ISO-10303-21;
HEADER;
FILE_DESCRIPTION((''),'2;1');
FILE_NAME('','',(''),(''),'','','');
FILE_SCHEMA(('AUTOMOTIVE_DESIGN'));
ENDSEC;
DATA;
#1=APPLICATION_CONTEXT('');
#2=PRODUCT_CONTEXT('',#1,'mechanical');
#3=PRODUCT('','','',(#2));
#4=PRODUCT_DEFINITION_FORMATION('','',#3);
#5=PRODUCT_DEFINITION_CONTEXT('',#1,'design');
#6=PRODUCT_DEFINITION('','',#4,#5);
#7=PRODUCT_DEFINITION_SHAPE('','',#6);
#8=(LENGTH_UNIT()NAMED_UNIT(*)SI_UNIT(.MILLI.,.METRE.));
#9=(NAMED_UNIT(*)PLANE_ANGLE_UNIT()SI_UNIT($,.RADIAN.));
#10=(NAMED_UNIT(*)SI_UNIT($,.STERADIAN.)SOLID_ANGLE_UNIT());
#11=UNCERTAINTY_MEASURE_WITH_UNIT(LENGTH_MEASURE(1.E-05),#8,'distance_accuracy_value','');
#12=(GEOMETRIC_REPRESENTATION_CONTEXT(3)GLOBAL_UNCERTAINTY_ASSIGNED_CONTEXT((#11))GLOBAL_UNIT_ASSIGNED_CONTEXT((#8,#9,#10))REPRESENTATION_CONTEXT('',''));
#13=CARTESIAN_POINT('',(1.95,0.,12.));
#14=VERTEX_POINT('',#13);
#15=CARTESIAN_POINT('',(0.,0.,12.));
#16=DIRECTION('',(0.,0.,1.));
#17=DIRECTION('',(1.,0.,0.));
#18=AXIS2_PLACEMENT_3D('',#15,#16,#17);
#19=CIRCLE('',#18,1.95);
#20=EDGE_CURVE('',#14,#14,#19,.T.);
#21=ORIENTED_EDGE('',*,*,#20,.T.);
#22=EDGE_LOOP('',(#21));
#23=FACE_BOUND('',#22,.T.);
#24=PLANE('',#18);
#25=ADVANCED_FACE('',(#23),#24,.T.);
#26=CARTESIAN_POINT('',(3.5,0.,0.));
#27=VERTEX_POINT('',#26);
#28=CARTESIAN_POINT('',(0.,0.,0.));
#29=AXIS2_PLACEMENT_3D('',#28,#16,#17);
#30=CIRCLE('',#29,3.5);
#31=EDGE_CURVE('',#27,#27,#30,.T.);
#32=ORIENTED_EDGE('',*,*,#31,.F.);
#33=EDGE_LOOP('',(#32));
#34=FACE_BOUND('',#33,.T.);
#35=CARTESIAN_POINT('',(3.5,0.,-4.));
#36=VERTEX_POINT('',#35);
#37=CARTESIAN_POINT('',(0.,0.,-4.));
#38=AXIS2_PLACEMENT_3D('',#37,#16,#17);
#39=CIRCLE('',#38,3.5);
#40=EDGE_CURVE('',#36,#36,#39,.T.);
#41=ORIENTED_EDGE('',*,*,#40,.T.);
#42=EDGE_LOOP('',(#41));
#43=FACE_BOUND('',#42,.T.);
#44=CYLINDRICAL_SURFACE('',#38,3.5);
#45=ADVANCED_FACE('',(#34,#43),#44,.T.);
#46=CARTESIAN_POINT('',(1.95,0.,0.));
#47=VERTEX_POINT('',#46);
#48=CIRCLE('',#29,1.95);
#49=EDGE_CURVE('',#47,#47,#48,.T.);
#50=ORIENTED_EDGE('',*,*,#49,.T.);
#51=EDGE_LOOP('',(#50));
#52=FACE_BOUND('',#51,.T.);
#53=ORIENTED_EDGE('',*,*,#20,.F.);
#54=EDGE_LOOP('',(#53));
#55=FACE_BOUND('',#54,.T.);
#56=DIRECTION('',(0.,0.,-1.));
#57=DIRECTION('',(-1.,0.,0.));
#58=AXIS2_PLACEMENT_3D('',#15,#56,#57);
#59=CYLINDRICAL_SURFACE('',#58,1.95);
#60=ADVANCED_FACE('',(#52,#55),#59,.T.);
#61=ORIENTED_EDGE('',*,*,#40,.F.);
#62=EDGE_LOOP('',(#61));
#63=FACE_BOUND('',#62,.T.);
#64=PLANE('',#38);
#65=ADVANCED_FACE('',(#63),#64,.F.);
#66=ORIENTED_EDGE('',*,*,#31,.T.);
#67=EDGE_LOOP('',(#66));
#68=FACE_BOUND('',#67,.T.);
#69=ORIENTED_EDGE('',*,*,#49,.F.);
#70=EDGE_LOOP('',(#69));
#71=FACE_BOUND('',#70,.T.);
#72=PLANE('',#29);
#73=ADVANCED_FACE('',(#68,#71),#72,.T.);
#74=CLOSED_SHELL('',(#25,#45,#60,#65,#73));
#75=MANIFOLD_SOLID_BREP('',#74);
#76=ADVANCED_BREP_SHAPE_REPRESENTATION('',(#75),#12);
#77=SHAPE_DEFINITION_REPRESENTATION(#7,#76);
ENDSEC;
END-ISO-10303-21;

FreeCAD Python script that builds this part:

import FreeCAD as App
import Part
import Sketcher
from FreeCAD import Vector

doc = App.newDocument("Part")
body = doc.addObject("PartDesign::Body", "Body")

sketch1 = doc.addObject("Sketcher::SketchObject", "Sketch")
body.addObject(sketch1)
sketch1.AttachmentSupport = (doc.XY_Plane, [""])
sketch1.MapMode = "FlatFace"
sketch1.addGeometry(Part.Circle(Vector(0, 0, 0), Vector(0, 0, 1), 1.95), False)
sketch1.addConstraint(Sketcher.Constraint("Coincident", 0, 3, -1, 1))
sketch1.addConstraint(Sketcher.Constraint("Diameter", 0, 3.9))
pad1 = doc.addObject("PartDesign::Pad", "Pad")
body.addObject(pad1)
pad1.Profile = sketch1
pad1.Length = 12

sketch2 = doc.addObject("Sketcher::SketchObject", "Sketch001")
body.addObject(sketch2)
sketch2.AttachmentSupport = (doc.XY_Plane, [""])
sketch2.MapMode = "FlatFace"
sketch2.addGeometry(Part.Circle(Vector(0, 0, 0), Vector(0, 0, 1), 3.5), False)
sketch2.addConstraint(Sketcher.Constraint("Coincident", 0, 3, -1, 1))
sketch2.addConstraint(Sketcher.Constraint("Diameter", 0, 7.0))
pad2 = doc.addObject("PartDesign::Pad", "Pad001")
body.addObject(pad2)
pad2.Profile = sketch2
pad2.Length = 4
pad2.Reversed = True

doc.recompute()
